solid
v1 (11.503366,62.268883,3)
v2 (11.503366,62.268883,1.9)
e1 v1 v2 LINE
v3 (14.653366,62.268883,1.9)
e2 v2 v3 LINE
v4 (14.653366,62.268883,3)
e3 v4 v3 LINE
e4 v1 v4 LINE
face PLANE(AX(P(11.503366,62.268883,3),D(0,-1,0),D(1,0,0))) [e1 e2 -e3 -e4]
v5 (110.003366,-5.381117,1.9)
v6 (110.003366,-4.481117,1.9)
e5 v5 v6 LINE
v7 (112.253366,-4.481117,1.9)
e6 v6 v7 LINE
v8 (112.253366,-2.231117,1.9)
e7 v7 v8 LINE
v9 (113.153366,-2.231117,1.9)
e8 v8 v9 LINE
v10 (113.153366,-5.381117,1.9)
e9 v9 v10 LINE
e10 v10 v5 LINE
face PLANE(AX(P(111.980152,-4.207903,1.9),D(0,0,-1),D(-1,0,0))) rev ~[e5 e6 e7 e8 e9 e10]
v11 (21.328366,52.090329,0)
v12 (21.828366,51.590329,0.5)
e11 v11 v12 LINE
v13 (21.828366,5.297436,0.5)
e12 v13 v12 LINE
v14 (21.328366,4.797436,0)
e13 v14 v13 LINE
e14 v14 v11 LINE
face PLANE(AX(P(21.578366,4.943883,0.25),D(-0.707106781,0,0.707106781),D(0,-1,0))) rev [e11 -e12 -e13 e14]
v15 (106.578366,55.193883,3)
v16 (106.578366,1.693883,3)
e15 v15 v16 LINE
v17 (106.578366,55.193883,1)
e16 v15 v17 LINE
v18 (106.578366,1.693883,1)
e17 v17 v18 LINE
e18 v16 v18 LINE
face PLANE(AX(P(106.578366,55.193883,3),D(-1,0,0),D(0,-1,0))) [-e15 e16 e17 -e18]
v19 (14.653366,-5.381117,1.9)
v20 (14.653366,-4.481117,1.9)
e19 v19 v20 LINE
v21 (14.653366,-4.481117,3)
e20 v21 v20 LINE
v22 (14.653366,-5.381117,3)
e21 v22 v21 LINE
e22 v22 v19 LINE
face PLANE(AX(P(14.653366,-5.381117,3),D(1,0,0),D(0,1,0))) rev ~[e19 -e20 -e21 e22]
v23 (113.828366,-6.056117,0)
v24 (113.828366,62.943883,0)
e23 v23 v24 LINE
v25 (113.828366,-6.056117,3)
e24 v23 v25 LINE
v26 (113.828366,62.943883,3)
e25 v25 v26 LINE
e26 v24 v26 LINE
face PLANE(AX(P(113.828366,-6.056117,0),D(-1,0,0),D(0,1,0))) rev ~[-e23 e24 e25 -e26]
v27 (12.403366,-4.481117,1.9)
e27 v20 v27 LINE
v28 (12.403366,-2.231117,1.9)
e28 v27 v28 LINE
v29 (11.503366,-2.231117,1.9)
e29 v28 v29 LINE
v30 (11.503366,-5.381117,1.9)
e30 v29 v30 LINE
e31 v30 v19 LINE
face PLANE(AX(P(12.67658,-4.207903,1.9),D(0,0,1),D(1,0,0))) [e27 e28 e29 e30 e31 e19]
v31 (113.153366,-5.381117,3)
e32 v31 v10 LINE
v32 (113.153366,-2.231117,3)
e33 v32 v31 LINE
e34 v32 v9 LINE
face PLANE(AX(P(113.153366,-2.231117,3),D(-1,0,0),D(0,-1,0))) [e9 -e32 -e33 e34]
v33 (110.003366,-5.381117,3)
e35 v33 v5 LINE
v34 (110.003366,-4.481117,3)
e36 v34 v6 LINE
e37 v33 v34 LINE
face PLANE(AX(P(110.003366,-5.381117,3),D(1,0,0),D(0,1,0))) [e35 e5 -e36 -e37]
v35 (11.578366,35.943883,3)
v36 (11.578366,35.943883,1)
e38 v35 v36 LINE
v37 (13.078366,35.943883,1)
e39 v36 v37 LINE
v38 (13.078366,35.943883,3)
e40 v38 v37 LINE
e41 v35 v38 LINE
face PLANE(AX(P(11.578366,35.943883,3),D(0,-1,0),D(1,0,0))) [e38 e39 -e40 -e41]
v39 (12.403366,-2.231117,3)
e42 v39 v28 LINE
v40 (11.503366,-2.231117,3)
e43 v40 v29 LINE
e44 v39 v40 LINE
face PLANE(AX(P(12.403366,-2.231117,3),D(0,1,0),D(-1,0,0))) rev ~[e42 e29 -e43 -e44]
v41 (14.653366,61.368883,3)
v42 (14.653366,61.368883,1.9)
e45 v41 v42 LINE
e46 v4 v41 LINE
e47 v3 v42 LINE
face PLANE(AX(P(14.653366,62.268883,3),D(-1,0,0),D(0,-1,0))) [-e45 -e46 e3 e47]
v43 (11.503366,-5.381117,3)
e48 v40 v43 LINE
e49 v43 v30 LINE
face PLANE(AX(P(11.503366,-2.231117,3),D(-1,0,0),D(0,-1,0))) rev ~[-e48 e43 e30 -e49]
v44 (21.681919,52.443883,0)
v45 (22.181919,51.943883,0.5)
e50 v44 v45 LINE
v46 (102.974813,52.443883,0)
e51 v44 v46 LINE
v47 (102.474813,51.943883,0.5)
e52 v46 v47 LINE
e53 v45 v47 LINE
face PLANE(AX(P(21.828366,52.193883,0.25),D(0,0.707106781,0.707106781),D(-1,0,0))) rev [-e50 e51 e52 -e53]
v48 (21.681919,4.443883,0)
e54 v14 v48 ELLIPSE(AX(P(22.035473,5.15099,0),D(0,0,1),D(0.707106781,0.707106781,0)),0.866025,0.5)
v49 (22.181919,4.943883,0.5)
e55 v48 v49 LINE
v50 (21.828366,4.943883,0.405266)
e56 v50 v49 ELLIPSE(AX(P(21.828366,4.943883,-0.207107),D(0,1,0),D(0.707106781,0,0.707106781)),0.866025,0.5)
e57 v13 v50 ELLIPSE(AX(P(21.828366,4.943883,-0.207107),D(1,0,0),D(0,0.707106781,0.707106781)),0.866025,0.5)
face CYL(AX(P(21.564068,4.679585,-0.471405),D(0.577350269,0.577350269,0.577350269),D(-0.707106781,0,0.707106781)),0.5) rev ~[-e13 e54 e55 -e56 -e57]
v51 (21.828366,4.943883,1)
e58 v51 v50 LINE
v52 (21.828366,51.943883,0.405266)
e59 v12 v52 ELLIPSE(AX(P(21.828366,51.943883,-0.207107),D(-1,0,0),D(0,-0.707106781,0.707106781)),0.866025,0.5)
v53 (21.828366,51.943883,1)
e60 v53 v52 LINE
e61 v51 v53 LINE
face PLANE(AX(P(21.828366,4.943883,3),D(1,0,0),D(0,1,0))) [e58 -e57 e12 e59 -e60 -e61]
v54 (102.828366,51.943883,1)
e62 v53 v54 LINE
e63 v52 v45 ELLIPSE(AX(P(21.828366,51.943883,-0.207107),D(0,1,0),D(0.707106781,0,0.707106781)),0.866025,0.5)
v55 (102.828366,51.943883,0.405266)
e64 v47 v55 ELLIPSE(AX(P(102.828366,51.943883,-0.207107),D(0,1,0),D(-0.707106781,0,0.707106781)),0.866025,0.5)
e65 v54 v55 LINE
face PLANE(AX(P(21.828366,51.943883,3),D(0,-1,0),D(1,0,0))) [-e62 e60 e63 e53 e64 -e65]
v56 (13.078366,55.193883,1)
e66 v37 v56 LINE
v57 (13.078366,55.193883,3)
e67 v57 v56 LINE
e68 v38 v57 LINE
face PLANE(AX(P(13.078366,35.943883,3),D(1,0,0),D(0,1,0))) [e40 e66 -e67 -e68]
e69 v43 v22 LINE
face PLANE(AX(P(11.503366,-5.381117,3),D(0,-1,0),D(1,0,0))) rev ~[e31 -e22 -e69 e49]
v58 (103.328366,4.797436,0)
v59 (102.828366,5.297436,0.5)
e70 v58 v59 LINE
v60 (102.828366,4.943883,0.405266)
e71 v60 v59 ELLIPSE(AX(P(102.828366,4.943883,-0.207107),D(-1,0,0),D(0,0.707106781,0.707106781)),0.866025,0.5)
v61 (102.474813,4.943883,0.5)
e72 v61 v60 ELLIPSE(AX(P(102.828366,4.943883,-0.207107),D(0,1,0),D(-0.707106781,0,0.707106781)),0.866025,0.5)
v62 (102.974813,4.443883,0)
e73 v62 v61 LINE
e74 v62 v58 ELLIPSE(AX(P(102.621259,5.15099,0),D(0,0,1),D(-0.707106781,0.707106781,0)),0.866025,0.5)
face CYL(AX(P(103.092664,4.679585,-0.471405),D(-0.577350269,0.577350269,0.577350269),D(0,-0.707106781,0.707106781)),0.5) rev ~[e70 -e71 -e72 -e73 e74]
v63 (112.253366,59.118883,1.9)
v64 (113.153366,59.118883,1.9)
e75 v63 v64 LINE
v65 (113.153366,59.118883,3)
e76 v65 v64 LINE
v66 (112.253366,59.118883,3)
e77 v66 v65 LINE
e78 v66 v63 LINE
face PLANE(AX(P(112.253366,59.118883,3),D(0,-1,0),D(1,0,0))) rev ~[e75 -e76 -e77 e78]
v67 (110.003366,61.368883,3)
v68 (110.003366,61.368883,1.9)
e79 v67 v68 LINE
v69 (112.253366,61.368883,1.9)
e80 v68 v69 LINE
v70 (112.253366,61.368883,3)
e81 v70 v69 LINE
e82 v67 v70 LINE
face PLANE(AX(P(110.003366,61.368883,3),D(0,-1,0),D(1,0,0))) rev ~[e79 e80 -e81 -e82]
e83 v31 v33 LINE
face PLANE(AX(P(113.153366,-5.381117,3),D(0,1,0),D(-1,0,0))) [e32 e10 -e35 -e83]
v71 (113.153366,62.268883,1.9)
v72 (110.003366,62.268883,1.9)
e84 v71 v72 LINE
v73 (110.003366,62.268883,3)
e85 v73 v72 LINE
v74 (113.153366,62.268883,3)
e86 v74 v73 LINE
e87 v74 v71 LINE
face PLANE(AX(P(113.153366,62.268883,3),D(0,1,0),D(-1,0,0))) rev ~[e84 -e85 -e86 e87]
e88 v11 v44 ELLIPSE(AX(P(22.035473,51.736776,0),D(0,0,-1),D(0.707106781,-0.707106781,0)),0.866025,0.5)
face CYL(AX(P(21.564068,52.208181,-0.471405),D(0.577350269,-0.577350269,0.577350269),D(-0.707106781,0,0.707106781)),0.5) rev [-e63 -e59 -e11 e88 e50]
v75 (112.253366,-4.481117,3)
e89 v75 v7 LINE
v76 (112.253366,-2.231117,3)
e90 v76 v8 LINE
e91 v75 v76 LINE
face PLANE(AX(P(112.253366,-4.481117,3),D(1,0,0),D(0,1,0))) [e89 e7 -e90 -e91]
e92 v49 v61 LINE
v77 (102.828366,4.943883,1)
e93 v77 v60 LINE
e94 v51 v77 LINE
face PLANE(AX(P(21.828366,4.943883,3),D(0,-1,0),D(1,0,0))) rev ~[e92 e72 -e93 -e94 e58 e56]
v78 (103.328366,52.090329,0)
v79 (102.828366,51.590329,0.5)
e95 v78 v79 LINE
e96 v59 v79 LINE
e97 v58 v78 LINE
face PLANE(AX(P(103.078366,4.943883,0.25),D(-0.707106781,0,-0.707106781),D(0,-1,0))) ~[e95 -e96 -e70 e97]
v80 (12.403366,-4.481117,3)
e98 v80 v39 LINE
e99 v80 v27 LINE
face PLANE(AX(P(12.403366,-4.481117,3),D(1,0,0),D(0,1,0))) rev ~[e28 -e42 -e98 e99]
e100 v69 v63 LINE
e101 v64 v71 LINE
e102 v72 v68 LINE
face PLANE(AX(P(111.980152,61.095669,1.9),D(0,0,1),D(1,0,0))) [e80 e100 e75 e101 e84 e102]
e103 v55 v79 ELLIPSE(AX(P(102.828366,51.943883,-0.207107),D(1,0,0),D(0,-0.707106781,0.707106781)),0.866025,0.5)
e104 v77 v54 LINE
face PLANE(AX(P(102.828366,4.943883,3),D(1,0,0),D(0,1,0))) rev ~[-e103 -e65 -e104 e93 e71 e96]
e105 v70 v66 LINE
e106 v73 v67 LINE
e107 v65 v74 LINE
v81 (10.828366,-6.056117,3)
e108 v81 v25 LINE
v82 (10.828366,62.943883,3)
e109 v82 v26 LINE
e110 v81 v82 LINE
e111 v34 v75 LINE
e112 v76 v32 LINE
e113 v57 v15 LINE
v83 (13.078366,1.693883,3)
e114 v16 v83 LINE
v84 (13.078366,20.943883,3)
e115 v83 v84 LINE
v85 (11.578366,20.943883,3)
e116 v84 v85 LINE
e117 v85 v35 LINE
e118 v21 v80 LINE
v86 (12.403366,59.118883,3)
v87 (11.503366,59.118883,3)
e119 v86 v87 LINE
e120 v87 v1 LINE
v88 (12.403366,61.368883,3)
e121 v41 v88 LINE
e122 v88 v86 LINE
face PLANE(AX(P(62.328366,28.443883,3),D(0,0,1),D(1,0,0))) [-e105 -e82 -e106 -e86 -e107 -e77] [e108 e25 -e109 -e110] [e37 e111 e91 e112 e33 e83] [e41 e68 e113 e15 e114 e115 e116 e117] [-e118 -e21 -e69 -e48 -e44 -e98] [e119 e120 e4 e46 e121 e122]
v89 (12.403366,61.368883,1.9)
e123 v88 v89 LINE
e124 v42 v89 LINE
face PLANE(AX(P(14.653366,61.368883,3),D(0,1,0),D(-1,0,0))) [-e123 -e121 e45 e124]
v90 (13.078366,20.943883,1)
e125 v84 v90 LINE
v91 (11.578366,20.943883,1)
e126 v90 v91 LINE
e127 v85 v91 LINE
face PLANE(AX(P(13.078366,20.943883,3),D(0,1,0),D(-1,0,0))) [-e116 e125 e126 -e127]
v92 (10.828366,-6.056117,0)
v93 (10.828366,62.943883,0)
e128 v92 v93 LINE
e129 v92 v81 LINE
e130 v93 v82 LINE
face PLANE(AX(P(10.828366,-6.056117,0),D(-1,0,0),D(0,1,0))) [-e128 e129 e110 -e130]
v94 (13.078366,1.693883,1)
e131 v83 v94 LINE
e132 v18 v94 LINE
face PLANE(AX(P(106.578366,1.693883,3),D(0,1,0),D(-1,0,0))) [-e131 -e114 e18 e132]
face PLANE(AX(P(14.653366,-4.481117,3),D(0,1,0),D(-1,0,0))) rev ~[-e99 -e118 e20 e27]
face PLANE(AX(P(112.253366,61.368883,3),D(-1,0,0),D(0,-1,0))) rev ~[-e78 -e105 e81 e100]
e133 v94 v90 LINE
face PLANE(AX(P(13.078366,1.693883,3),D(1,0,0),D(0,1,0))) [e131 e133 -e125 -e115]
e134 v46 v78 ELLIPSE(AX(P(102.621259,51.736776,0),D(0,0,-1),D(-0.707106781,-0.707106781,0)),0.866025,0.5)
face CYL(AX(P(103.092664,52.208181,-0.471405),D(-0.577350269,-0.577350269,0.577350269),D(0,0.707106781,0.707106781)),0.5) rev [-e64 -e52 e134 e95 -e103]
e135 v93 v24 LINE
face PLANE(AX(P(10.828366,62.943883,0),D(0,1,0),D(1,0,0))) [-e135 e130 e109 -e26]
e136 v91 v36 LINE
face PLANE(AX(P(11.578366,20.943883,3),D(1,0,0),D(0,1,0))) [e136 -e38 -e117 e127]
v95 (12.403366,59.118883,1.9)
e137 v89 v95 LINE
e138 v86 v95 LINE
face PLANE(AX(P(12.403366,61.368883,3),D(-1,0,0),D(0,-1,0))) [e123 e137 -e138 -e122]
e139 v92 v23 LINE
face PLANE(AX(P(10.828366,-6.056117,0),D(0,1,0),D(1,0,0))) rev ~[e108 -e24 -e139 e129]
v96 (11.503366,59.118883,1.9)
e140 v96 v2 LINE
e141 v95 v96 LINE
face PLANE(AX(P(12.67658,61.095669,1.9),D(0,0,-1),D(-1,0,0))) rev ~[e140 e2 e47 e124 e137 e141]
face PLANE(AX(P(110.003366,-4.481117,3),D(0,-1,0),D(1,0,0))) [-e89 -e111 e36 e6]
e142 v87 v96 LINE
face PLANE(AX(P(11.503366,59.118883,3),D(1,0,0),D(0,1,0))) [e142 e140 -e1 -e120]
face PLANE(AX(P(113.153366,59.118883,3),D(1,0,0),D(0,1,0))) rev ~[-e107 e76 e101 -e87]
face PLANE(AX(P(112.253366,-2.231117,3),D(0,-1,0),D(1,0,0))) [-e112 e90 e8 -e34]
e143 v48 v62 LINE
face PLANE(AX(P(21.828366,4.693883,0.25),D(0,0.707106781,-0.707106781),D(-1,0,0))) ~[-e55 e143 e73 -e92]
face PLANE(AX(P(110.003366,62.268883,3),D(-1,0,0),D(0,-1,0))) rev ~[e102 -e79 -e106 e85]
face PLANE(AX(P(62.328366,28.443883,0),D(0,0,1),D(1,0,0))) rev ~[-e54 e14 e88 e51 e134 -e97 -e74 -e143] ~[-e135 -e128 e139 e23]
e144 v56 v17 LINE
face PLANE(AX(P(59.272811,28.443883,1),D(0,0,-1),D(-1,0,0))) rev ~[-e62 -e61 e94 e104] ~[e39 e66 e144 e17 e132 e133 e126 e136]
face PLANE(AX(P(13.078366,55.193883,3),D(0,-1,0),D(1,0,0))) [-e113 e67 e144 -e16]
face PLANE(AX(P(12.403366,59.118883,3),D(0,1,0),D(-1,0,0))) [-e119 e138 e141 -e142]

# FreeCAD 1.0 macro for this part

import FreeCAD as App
import Part
import Sketcher
Q = App.Units.Quantity


def edges_at(feature, points):
    """Names of the edges that pass closest to the given points."""
    edges = feature.Shape.Edges
    near = lambda p: min(range(len(edges)), key=lambda i: edges[i].distToShape(Part.Vertex(*p))[0])
    return sorted({f"Edge{near(p) + 1}" for p in points})


def add_polygon(sketch, points):
    """Adds a closed chain of lines whose ends are joined by coincident constraints."""
    first, n = sketch.GeometryCount, len(points)
    for a, b in zip(points, points[1:] + points[:1]):
        sketch.addGeometry(Part.LineSegment(App.Vector(*a, 0), App.Vector(*b, 0)), False)
    for i in range(n):
        sketch.addConstraint(Sketcher.Constraint("Coincident", first + i, 2, first + (i + 1) % n, 1))

doc = App.newDocument("Part")
body = doc.addObject("PartDesign::Body", "Body")

# Sketch on XY plane
sketch1 = body.newObject("Sketcher::SketchObject", "Sketch")
sketch1.AttachmentSupport = (doc.getObject("XY_Plane"), [""])
sketch1.MapMode = "FlatFace"
add_polygon(sketch1, [(11, 63), (11, -6), (114, -6), (114, 63)])  # lines 0-3
sketch1.addConstraint(Sketcher.Constraint("Vertical", 0))
sketch1.addConstraint(Sketcher.Constraint("Horizontal", 1))
sketch1.addConstraint(Sketcher.Constraint("Vertical", 2))
sketch1.addConstraint(Sketcher.Constraint("Horizontal", 3))
sketch1.addConstraint(Sketcher.Constraint("DistanceX", 1, 1, 1, 2, Q("103 mm")))
sketch1.addConstraint(Sketcher.Constraint("DistanceY", 0, 2, 0, 1, Q("69 mm")))
sketch1.addConstraint(Sketcher.Constraint("DistanceX", -1, 1, 0, 2, Q("10.828366 mm")))
sketch1.addConstraint(Sketcher.Constraint("DistanceY", 0, 2, -1, 1, Q("6.056117 mm")))
pad1 = body.newObject("PartDesign::Pad", "Pad")
pad1.Profile = sketch1
pad1.Length = 3

# Sketch on XY plane
sketch2 = body.newObject("Sketcher::SketchObject", "Sketch001")
sketch2.AttachmentSupport = (doc.getObject("XY_Plane"), [""])
sketch2.MapMode = "FlatFace"
sketch2.AttachmentOffset = App.Placement(App.Vector(0, 0, 3), App.Rotation())
add_polygon(sketch2, [(22, 52), (22, 5), (103, 5), (103, 52)])  # lines 0-3
sketch2.addConstraint(Sketcher.Constraint("Vertical", 0))
sketch2.addConstraint(Sketcher.Constraint("Horizontal", 1))
sketch2.addConstraint(Sketcher.Constraint("Vertical", 2))
sketch2.addConstraint(Sketcher.Constraint("Horizontal", 3))
sketch2.addConstraint(Sketcher.Constraint("DistanceX", 1, 1, 1, 2, Q("81 mm")))
sketch2.addConstraint(Sketcher.Constraint("DistanceY", 0, 2, 0, 1, Q("47 mm")))
sketch2.addConstraint(Sketcher.Constraint("DistanceX", -1, 1, 0, 2, Q("21.828366 mm")))
sketch2.addConstraint(Sketcher.Constraint("DistanceY", -1, 1, 0, 2, Q("4.943883 mm")))
pocket1 = body.newObject("PartDesign::Pocket", "Pocket")
pocket1.Profile = sketch2
pocket1.Length = 3

# Sketch on XY plane
sketch3 = body.newObject("Sketcher::SketchObject", "Sketch002")
sketch3.AttachmentSupport = (doc.getObject("XY_Plane"), [""])
sketch3.MapMode = "FlatFace"
sketch3.AttachmentOffset = App.Placement(App.Vector(0, 0, 3), App.Rotation())
add_polygon(sketch3, [(106.6, 55.2), (13.1, 55.2), (13.1, 35.9), (11.6, 35.9), (11.6, 20.9), (13.1, 20.9), (13.1, 1.7), (106.6, 1.7)])  # lines 0-7
sketch3.addConstraint(Sketcher.Constraint("Horizontal", 0))
sketch3.addConstraint(Sketcher.Constraint("Vertical", 1))
sketch3.addConstraint(Sketcher.Constraint("Horizontal", 2))
sketch3.addConstraint(Sketcher.Constraint("Vertical", 3))
sketch3.addConstraint(Sketcher.Constraint("Horizontal", 4))
sketch3.addConstraint(Sketcher.Constraint("Vertical", 5))
sketch3.addConstraint(Sketcher.Constraint("Horizontal", 6))
sketch3.addConstraint(Sketcher.Constraint("Vertical", 7))
sketch3.addConstraint(Sketcher.Constraint("Vertical", 1, 2, 4, 2))
sketch3.addConstraint(Sketcher.Constraint("Equal", 1, 5))
sketch3.addConstraint(Sketcher.Constraint("DistanceY", 3, 2, 3, 1, Q("15 mm")))
sketch3.addConstraint(Sketcher.Constraint("DistanceX", 0, 2, 0, 1, Q("93.5 mm")))
sketch3.addConstraint(Sketcher.Constraint("DistanceX", 2, 2, 2, 1, Q("1.5 mm")))
sketch3.addConstraint(Sketcher.Constraint("DistanceY", 7, 1, 7, 2, Q("53.5 mm")))
sketch3.addConstraint(Sketcher.Constraint("DistanceX", -1, 1, 0, 2, Q("13.078366 mm")))
sketch3.addConstraint(Sketcher.Constraint("DistanceY", -1, 1, 0, 2, Q("55.193883 mm")))
pocket2 = body.newObject("PartDesign::Pocket", "Pocket001")
pocket2.Profile = sketch3
pocket2.Length = 2
doc.recompute()

chamfer = body.newObject("PartDesign::Chamfer", "Chamfer")
chamfer.Base = (pocket2, edges_at(pocket2, [
    (21.828, 28.444, 0),
    (62.328, 51.944, 0),
    (102.828, 28.444, 0),
    (62.328, 4.944, 0),
]))
chamfer.Size = 0.5
doc.recompute()

fillet = body.newObject("PartDesign::Fillet", "Fillet")
fillet.Base = (chamfer, edges_at(chamfer, [
    (21.578, 52.194, 0.25),
    (103.078, 52.194, 0.25),
    (21.578, 4.694, 0.25),
    (103.078, 4.694, 0.25),
]))
fillet.Radius = 0.5

# Sketch on XY plane
sketch4 = body.newObject("Sketcher::SketchObject", "Sketch003")
sketch4.AttachmentSupport = (doc.getObject("XY_Plane"), [""])
sketch4.MapMode = "FlatFace"
sketch4.AttachmentOffset = App.Placement(App.Vector(0, 0, 3), App.Rotation())
add_polygon(sketch4, [(14.7, 62.3), (11.5, 62.3), (11.5, 59.1), (12.4, 59.1), (12.4, 61.4), (14.7, 61.4)])  # lines 0-5
add_polygon(sketch4, [(113.2, 59.1), (113.2, 62.3), (110, 62.3), (110, 61.4), (112.3, 61.4), (112.3, 59.1)])  # lines 6-11
add_polygon(sketch4, [(110, -5.4), (113.2, -5.4), (113.2, -2.2), (112.3, -2.2), (112.3, -4.5), (110, -4.5)])  # lines 12-17
add_polygon(sketch4, [(11.5, -2.2), (11.5, -5.4), (14.7, -5.4), (14.7, -4.5), (12.4, -4.5), (12.4, -2.2)])  # lines 18-23
sketch4.addConstraint(Sketcher.Constraint("Horizontal", 0))
sketch4.addConstraint(Sketcher.Constraint("Vertical", 1))
sketch4.addConstraint(Sketcher.Constraint("Horizontal", 2))
sketch4.addConstraint(Sketcher.Constraint("Vertical", 3))
sketch4.addConstraint(Sketcher.Constraint("Horizontal", 4))
sketch4.addConstraint(Sketcher.Constraint("Vertical", 5))
sketch4.addConstraint(Sketcher.Constraint("Vertical", 6))
sketch4.addConstraint(Sketcher.Constraint("Horizontal", 7))
sketch4.addConstraint(Sketcher.Constraint("Vertical", 8))
sketch4.addConstraint(Sketcher.Constraint("Horizontal", 9))
sketch4.addConstraint(Sketcher.Constraint("Vertical", 10))
sketch4.addConstraint(Sketcher.Constraint("Horizontal", 11))
sketch4.addConstraint(Sketcher.Constraint("Horizontal", 12))
sketch4.addConstraint(Sketcher.Constraint("Vertical", 13))
sketch4.addConstraint(Sketcher.Constraint("Horizontal", 14))
sketch4.addConstraint(Sketcher.Constraint("Vertical", 15))
sketch4.addConstraint(Sketcher.Constraint("Horizontal", 16))
sketch4.addConstraint(Sketcher.Constraint("Vertical", 17))
sketch4.addConstraint(Sketcher.Constraint("Vertical", 18))
sketch4.addConstraint(Sketcher.Constraint("Horizontal", 19))
sketch4.addConstraint(Sketcher.Constraint("Vertical", 20))
sketch4.addConstraint(Sketcher.Constraint("Horizontal", 21))
sketch4.addConstraint(Sketcher.Constraint("Vertical", 22))
sketch4.addConstraint(Sketcher.Constraint("Horizontal", 23))
sketch4.addConstraint(Sketcher.Constraint("Horizontal", 5, 2, 6, 2))
sketch4.addConstraint(Sketcher.Constraint("Horizontal", 4, 2, 8, 2))
sketch4.addConstraint(Sketcher.Constraint("Horizontal", 2, 2, 10, 2))
sketch4.addConstraint(Sketcher.Constraint("Horizontal", 17, 2, 18, 2))
sketch4.addConstraint(Sketcher.Constraint("Horizontal", 16, 2, 20, 2))
sketch4.addConstraint(Sketcher.Constraint("Horizontal", 14, 2, 22, 2))
sketch4.addConstraint(Sketcher.Constraint("Vertical", 11, 2, 12, 2))
sketch4.addConstraint(Sketcher.Constraint("Vertical", 10, 2, 14, 2))
sketch4.addConstraint(Sketcher.Constraint("Vertical", 8, 2, 16, 2))
sketch4.addConstraint(Sketcher.Constraint("Vertical", 1, 2, 18, 2))
sketch4.addConstraint(Sketcher.Constraint("Vertical", 5, 2, 19, 2))
sketch4.addConstraint(Sketcher.Constraint("Vertical", 3, 2, 21, 2))
sketch4.addConstraint(Sketcher.Constraint("Equal", 0, 7))
sketch4.addConstraint(Sketcher.Constraint("Equal", 4, 9))
sketch4.addConstraint(Sketcher.Constraint("Equal", 19, 1))
sketch4.addConstraint(Sketcher.Constraint("Equal", 21, 3))
sketch4.addConstraint(Sketcher.Constraint("Equal", 6, 13))
sketch4.addConstraint(Sketcher.Constraint("Equal", 10, 15))
sketch4.addConstraint(Sketcher.Constraint("DistanceX", 2, 1, 2, 2, Q("0.9 mm")))
sketch4.addConstraint(Sketcher.Constraint("DistanceX", 0, 2, 0, 1, Q("3.15 mm")))
sketch4.addConstraint(Sketcher.Constraint("DistanceX", 5, 2, 6, 2, Q("98.5 mm")))
sketch4.addConstraint(Sketcher.Constraint("DistanceY", 12, 2, 11, 2, Q("64.5 mm")))
sketch4.addConstraint(Sketcher.Constraint("DistanceX", -1, 1, 0, 2, Q("11.503366 mm")))
sketch4.addConstraint(Sketcher.Constraint("DistanceY", -1, 1, 0, 2, Q("62.268883 mm")))
pocket3 = body.newObject("PartDesign::Pocket", "Pocket002")
pocket3.Profile = sketch4
pocket3.Length = 1.1

doc.recompute()
